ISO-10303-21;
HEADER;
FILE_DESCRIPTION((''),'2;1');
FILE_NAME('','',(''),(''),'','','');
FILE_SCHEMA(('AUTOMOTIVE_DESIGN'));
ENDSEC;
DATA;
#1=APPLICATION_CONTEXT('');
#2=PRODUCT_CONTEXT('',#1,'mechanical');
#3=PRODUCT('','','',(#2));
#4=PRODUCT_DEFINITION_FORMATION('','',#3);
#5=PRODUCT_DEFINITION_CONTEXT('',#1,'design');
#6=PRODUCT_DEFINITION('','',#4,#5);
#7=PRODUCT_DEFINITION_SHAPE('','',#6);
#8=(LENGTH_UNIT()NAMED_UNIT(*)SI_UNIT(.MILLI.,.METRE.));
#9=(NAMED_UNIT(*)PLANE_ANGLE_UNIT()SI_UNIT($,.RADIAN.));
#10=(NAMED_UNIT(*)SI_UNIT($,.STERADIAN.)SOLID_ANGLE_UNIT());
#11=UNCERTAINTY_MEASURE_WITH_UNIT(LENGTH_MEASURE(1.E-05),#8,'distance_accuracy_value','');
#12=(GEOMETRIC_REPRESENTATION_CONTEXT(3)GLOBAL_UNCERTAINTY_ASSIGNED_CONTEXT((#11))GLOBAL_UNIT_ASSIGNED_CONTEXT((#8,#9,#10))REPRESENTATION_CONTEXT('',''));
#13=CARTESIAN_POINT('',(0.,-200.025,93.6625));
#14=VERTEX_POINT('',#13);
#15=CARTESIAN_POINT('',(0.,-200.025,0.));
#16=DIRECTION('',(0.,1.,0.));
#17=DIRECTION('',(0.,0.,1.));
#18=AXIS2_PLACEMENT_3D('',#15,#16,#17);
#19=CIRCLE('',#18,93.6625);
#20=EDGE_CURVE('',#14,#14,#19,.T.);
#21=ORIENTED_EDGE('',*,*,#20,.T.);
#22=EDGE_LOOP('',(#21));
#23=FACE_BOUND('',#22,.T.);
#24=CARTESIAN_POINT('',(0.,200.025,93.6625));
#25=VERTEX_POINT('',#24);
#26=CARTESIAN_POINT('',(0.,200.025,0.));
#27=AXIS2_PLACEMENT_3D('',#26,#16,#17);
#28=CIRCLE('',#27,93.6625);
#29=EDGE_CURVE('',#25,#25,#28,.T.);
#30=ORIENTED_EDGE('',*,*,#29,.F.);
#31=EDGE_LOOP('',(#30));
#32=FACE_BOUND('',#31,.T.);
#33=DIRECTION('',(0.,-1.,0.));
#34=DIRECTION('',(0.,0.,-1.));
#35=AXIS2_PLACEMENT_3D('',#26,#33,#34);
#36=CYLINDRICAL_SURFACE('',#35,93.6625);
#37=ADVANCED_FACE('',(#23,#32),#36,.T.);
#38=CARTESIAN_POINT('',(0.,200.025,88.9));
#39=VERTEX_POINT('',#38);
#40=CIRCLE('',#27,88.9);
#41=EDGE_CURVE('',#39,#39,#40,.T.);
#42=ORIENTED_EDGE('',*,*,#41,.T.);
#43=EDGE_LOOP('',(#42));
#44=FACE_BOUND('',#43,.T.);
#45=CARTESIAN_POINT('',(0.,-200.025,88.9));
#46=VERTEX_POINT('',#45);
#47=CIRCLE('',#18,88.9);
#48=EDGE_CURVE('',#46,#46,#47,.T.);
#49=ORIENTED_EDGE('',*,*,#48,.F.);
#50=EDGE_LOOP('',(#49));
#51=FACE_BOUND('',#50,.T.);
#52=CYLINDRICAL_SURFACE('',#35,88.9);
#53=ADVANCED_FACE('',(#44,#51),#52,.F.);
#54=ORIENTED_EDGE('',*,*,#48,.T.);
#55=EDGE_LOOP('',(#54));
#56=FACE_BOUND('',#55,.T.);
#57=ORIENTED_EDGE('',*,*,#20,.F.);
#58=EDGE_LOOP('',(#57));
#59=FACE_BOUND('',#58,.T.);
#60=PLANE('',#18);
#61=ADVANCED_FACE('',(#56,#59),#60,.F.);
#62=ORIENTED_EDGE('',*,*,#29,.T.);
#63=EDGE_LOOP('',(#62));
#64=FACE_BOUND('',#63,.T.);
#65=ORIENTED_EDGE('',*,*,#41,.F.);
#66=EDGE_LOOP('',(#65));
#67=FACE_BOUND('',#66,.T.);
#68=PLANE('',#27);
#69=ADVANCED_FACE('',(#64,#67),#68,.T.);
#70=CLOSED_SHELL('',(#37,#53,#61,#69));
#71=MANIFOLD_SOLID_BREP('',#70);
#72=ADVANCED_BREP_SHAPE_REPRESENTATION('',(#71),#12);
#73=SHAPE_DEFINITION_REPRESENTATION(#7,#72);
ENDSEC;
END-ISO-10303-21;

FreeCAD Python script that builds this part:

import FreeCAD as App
import Part
import Sketcher

V = App.Vector
Q = App.Units.Quantity

doc = App.newDocument("Part")
body = doc.addObject("PartDesign::Body", "Body")

sketch1 = body.newObject("Sketcher::SketchObject", "Sketch")
sketch1.AttachmentSupport = (doc.getObject("XZ_Plane"), [""])
sketch1.MapMode = "FlatFace"
sketch1.addGeometry([
    Part.Circle(V(0, 0, 0), V(0, 0, 1), 94),
    Part.Circle(V(0, 0, 0), V(0, 0, 1), 89),
], False)
sketch1.addConstraint([
    Sketcher.Constraint("Coincident", 0, 3, -1, 1),
    Sketcher.Constraint("Coincident", 1, 3, -1, 1),
    Sketcher.Constraint("Diameter", 1, Q("7 in")),
    Sketcher.Constraint("Diameter", 0, Q("7.375 in")),
])
pad1 = body.newObject("PartDesign::Pad", "Pad")
pad1.Profile = sketch1
pad1.Length = Q("15.75 in")
pad1.Midplane = True

doc.recompute()
